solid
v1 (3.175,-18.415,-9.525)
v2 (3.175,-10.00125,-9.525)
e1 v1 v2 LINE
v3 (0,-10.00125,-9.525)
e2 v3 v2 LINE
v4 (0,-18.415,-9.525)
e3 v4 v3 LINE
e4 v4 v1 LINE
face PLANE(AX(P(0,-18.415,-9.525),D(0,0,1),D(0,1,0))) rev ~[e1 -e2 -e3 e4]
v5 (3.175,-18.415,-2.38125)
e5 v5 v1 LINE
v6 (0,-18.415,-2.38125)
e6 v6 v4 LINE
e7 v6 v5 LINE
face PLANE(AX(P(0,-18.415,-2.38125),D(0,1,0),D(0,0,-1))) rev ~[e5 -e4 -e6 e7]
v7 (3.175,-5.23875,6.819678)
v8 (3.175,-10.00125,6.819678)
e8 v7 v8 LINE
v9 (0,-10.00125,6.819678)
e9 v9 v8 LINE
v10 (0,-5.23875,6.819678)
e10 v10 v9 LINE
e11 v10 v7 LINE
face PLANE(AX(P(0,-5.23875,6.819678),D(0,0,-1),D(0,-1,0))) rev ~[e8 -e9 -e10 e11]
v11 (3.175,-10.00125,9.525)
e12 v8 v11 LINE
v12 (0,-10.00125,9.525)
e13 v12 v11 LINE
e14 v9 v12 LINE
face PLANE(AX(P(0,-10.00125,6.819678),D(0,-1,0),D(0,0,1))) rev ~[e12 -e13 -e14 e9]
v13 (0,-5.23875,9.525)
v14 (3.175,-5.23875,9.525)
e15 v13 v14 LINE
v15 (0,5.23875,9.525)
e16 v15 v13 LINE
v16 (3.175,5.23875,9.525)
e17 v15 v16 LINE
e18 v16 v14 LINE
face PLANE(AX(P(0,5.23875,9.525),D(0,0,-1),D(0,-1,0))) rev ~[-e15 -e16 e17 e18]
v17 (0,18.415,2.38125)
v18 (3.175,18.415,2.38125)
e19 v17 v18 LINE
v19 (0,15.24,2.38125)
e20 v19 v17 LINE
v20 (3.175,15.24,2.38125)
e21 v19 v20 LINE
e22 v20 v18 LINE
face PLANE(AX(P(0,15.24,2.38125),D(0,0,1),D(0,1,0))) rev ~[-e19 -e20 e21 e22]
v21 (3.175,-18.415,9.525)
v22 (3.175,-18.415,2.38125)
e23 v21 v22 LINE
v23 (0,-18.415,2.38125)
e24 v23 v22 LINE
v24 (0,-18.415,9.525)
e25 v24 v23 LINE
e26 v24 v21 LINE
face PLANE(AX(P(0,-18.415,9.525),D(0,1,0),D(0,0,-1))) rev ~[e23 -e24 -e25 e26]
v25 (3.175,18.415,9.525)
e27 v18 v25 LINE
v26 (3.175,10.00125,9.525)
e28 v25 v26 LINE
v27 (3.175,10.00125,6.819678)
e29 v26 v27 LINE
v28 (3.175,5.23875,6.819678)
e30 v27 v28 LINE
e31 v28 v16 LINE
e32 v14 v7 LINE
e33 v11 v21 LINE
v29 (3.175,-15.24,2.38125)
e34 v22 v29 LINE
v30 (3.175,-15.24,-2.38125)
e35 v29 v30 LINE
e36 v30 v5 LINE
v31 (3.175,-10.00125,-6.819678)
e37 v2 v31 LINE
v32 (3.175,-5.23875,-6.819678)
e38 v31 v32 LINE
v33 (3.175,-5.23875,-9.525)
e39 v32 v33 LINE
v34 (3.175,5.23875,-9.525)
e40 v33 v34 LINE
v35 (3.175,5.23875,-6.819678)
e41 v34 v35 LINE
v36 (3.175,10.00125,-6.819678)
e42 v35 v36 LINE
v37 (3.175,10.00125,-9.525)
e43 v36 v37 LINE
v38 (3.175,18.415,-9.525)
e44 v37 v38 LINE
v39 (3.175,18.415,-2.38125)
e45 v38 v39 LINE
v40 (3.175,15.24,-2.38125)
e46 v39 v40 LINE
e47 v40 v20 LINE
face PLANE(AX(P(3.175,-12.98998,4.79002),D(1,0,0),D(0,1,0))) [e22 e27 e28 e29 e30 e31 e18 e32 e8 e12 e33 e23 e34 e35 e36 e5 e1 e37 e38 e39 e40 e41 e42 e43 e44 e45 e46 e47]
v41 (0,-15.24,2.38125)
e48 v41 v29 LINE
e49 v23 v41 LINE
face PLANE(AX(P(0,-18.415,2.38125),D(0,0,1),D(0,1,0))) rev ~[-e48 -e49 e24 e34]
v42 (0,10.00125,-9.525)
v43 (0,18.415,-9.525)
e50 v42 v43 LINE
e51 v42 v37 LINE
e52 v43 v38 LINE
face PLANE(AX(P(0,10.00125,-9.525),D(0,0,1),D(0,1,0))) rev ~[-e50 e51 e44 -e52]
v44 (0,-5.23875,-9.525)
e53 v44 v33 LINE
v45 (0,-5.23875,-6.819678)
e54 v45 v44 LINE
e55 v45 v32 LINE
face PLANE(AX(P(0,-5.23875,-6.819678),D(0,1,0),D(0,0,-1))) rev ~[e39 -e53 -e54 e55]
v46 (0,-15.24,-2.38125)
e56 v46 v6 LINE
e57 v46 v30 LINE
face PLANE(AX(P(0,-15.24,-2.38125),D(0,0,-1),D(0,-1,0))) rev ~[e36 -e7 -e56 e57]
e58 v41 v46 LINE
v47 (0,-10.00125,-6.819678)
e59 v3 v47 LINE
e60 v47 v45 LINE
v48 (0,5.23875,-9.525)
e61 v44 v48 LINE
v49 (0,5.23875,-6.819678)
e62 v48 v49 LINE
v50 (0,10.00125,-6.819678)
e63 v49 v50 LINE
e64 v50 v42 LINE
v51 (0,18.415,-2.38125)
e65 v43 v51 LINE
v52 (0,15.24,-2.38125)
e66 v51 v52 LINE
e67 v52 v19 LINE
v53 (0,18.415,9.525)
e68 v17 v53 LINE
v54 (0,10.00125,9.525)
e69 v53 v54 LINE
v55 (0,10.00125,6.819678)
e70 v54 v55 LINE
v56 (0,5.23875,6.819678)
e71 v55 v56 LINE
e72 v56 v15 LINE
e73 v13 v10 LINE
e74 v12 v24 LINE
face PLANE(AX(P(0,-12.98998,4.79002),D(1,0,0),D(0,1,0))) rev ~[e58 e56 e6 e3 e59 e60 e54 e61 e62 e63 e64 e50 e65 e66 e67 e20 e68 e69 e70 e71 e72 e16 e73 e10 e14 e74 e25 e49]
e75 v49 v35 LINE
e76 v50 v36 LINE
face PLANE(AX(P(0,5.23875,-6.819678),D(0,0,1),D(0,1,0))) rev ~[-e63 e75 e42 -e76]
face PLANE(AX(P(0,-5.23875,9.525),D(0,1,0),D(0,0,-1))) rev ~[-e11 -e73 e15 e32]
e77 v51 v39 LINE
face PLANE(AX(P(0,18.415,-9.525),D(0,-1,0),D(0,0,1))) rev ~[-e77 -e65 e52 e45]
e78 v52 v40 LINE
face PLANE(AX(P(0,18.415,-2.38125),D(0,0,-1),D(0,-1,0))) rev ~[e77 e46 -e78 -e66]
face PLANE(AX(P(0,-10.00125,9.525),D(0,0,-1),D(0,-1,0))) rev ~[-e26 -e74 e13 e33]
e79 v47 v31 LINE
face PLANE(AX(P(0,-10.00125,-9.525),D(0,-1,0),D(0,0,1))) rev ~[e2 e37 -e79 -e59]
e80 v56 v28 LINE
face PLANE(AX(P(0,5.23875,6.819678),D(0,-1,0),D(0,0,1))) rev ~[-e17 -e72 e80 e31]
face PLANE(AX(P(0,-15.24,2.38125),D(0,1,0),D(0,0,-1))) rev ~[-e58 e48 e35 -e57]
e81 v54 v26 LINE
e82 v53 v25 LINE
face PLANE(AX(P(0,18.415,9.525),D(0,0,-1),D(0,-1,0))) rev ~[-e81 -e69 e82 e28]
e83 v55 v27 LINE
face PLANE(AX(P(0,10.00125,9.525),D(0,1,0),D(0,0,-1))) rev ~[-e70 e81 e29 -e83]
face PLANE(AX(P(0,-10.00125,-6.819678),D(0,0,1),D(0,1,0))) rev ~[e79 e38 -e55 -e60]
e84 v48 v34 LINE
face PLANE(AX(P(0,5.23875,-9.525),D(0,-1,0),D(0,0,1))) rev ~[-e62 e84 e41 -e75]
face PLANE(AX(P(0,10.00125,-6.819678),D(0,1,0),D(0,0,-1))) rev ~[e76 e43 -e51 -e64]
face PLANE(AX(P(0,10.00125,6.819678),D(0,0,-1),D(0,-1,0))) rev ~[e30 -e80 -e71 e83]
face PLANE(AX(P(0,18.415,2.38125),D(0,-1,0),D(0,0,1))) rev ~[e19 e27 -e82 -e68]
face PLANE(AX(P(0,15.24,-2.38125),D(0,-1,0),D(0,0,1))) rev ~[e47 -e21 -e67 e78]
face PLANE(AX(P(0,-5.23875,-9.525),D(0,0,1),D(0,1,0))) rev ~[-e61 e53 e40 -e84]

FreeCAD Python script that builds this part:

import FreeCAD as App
import Part
import Sketcher
Q = App.Units.Quantity

doc = App.newDocument("Part")
body = doc.addObject("PartDesign::Body", "Body")

sketch1 = doc.addObject("Sketcher::SketchObject", "Sketch")
body.addObject(sketch1)
sketch1.AttachmentSupport = (doc.YZ_Plane, [""])
sketch1.MapMode = "FlatFace"
sketch1.addGeometry(Part.LineSegment(App.Vector(-5.23875, -6.819678, 0), App.Vector(-5.23875, -9.525, 0)), False)
sketch1.addGeometry(Part.LineSegment(App.Vector(-5.23875, -9.525, 0), App.Vector(5.23875, -9.525, 0)), False)
sketch1.addGeometry(Part.LineSegment(App.Vector(5.23875, -9.525, 0), App.Vector(5.23875, -6.819678, 0)), False)
sketch1.addGeometry(Part.LineSegment(App.Vector(5.23875, -6.819678, 0), App.Vector(10.00125, -6.819678, 0)), False)
sketch1.addGeometry(Part.LineSegment(App.Vector(10.00125, -6.819678, 0), App.Vector(10.00125, -9.525, 0)), False)
sketch1.addGeometry(Part.LineSegment(App.Vector(10.00125, -9.525, 0), App.Vector(18.415, -9.525, 0)), False)
sketch1.addGeometry(Part.LineSegment(App.Vector(18.415, -9.525, 0), App.Vector(18.415, -2.38125, 0)), False)
sketch1.addGeometry(Part.LineSegment(App.Vector(18.415, -2.38125, 0), App.Vector(15.24, -2.38125, 0)), False)
sketch1.addGeometry(Part.LineSegment(App.Vector(15.24, -2.38125, 0), App.Vector(15.24, 2.38125, 0)), False)
sketch1.addGeometry(Part.LineSegment(App.Vector(15.24, 2.38125, 0), App.Vector(18.415, 2.38125, 0)), False)
sketch1.addGeometry(Part.LineSegment(App.Vector(18.415, 2.38125, 0), App.Vector(18.415, 9.525, 0)), False)
sketch1.addGeometry(Part.LineSegment(App.Vector(18.415, 9.525, 0), App.Vector(10.00125, 9.525, 0)), False)
sketch1.addGeometry(Part.LineSegment(App.Vector(10.00125, 9.525, 0), App.Vector(10.00125, 6.819678, 0)), False)
sketch1.addGeometry(Part.LineSegment(App.Vector(10.00125, 6.819678, 0), App.Vector(5.23875, 6.819678, 0)), False)
sketch1.addGeometry(Part.LineSegment(App.Vector(5.23875, 6.819678, 0), App.Vector(5.23875, 9.525, 0)), False)
sketch1.addGeometry(Part.LineSegment(App.Vector(5.23875, 9.525, 0), App.Vector(-5.23875, 9.525, 0)), False)
sketch1.addGeometry(Part.LineSegment(App.Vector(-5.23875, 9.525, 0), App.Vector(-5.23875, 6.819678, 0)), False)
sketch1.addGeometry(Part.LineSegment(App.Vector(-5.23875, 6.819678, 0), App.Vector(-10.00125, 6.819678, 0)), False)
sketch1.addGeometry(Part.LineSegment(App.Vector(-10.00125, 6.819678, 0), App.Vector(-10.00125, 9.525, 0)), False)
sketch1.addGeometry(Part.LineSegment(App.Vector(-10.00125, 9.525, 0), App.Vector(-18.415, 9.525, 0)), False)
sketch1.addGeometry(Part.LineSegment(App.Vector(-18.415, 9.525, 0), App.Vector(-18.415, 2.38125, 0)), False)
sketch1.addGeometry(Part.LineSegment(App.Vector(-18.415, 2.38125, 0), App.Vector(-15.24, 2.38125, 0)), False)
sketch1.addGeometry(Part.LineSegment(App.Vector(-15.24, 2.38125, 0), App.Vector(-15.24, -2.38125, 0)), False)
sketch1.addGeometry(Part.LineSegment(App.Vector(-15.24, -2.38125, 0), App.Vector(-18.415, -2.38125, 0)), False)
sketch1.addGeometry(Part.LineSegment(App.Vector(-18.415, -2.38125, 0), App.Vector(-18.415, -9.525, 0)), False)
sketch1.addGeometry(Part.LineSegment(App.Vector(-18.415, -9.525, 0), App.Vector(-10.00125, -9.525, 0)), False)
sketch1.addGeometry(Part.LineSegment(App.Vector(-10.00125, -9.525, 0), App.Vector(-10.00125, -6.819678, 0)), False)
sketch1.addGeometry(Part.LineSegment(App.Vector(-10.00125, -6.819678, 0), App.Vector(-5.23875, -6.819678, 0)), False)
sketch1.addConstraint(Sketcher.Constraint("Coincident", 0, 2, 1, 1))
sketch1.addConstraint(Sketcher.Constraint("Coincident", 1, 2, 2, 1))
sketch1.addConstraint(Sketcher.Constraint("Coincident", 2, 2, 3, 1))
sketch1.addConstraint(Sketcher.Constraint("Coincident", 3, 2, 4, 1))
sketch1.addConstraint(Sketcher.Constraint("Coincident", 4, 2, 5, 1))
sketch1.addConstraint(Sketcher.Constraint("Coincident", 5, 2, 6, 1))
sketch1.addConstraint(Sketcher.Constraint("Coincident", 6, 2, 7, 1))
sketch1.addConstraint(Sketcher.Constraint("Coincident", 7, 2, 8, 1))
sketch1.addConstraint(Sketcher.Constraint("Coincident", 8, 2, 9, 1))
sketch1.addConstraint(Sketcher.Constraint("Coincident", 9, 2, 10, 1))
sketch1.addConstraint(Sketcher.Constraint("Coincident", 10, 2, 11, 1))
sketch1.addConstraint(Sketcher.Constraint("Coincident", 11, 2, 12, 1))
sketch1.addConstraint(Sketcher.Constraint("Coincident", 12, 2, 13, 1))
sketch1.addConstraint(Sketcher.Constraint("Coincident", 13, 2, 14, 1))
sketch1.addConstraint(Sketcher.Constraint("Coincident", 14, 2, 15, 1))
sketch1.addConstraint(Sketcher.Constraint("Coincident", 15, 2, 16, 1))
sketch1.addConstraint(Sketcher.Constraint("Coincident", 16, 2, 17, 1))
sketch1.addConstraint(Sketcher.Constraint("Coincident", 17, 2, 18, 1))
sketch1.addConstraint(Sketcher.Constraint("Coincident", 18, 2, 19, 1))
sketch1.addConstraint(Sketcher.Constraint("Coincident", 19, 2, 20, 1))
sketch1.addConstraint(Sketcher.Constraint("Coincident", 20, 2, 21, 1))
sketch1.addConstraint(Sketcher.Constraint("Coincident", 21, 2, 22, 1))
sketch1.addConstraint(Sketcher.Constraint("Coincident", 22, 2, 23, 1))
sketch1.addConstraint(Sketcher.Constraint("Coincident", 23, 2, 24, 1))
sketch1.addConstraint(Sketcher.Constraint("Coincident", 24, 2, 25, 1))
sketch1.addConstraint(Sketcher.Constraint("Coincident", 25, 2, 26, 1))
sketch1.addConstraint(Sketcher.Constraint("Coincident", 26, 2, 27, 1))
sketch1.addConstraint(Sketcher.Constraint("Coincident", 27, 2, 0, 1))
sketch1.addConstraint(Sketcher.Constraint("Vertical", 0))
sketch1.addConstraint(Sketcher.Constraint("Horizontal", 1))
sketch1.addConstraint(Sketcher.Constraint("Vertical", 2))
sketch1.addConstraint(Sketcher.Constraint("Horizontal", 3))
sketch1.addConstraint(Sketcher.Constraint("Vertical", 4))
sketch1.addConstraint(Sketcher.Constraint("Horizontal", 5))
sketch1.addConstraint(Sketcher.Constraint("Vertical", 6))
sketch1.addConstraint(Sketcher.Constraint("Horizontal", 7))
sketch1.addConstraint(Sketcher.Constraint("Vertical", 8))
sketch1.addConstraint(Sketcher.Constraint("Horizontal", 9))
sketch1.addConstraint(Sketcher.Constraint("Vertical", 10))
sketch1.addConstraint(Sketcher.Constraint("Horizontal", 11))
sketch1.addConstraint(Sketcher.Constraint("Vertical", 12))
sketch1.addConstraint(Sketcher.Constraint("Horizontal", 13))
sketch1.addConstraint(Sketcher.Constraint("Vertical", 14))
sketch1.addConstraint(Sketcher.Constraint("Horizontal", 15))
sketch1.addConstraint(Sketcher.Constraint("Vertical", 16))
sketch1.addConstraint(Sketcher.Constraint("Horizontal", 17))
sketch1.addConstraint(Sketcher.Constraint("Vertical", 18))
sketch1.addConstraint(Sketcher.Constraint("Horizontal", 19))
sketch1.addConstraint(Sketcher.Constraint("Vertical", 20))
sketch1.addConstraint(Sketcher.Constraint("Horizontal", 21))
sketch1.addConstraint(Sketcher.Constraint("Vertical", 22))
sketch1.addConstraint(Sketcher.Constraint("Horizontal", 23))
sketch1.addConstraint(Sketcher.Constraint("Vertical", 24))
sketch1.addConstraint(Sketcher.Constraint("Horizontal", 25))
sketch1.addConstraint(Sketcher.Constraint("Vertical", 26))
sketch1.addConstraint(Sketcher.Constraint("Horizontal", 27))
sketch1.addConstraint(Sketcher.Constraint("Symmetric", 0, 2, 14, 2, -1, 1))
sketch1.addConstraint(Sketcher.Constraint("Symmetric", 2, 2, 16, 2, -1, 1))
sketch1.addConstraint(Sketcher.Constraint("Symmetric", 4, 2, 18, 2, -1, 1))
sketch1.addConstraint(Sketcher.Constraint("Symmetric", 6, 2, 20, 2, -1, 1))
sketch1.addConstraint(Sketcher.Constraint("Symmetric", 8, 2, 22, 2, -1, 1))
sketch1.addConstraint(Sketcher.Constraint("Symmetric", 10, 2, 24, 2, -1, 1))
sketch1.addConstraint(Sketcher.Constraint("Symmetric", 12, 2, 26, 2, -1, 1))
sketch1.addConstraint(Sketcher.Constraint("Symmetric", 13, 2, 16, 2, -2))
sketch1.addConstraint(Sketcher.Constraint("Symmetric", 11, 2, 18, 2, -2))
sketch1.addConstraint(Sketcher.Constraint("Symmetric", 9, 2, 20, 2, -2))
sketch1.addConstraint(Sketcher.Constraint("Horizontal", 1, 2, 4, 2))
sketch1.addConstraint(Sketcher.Constraint("Equal", 27, 8))
sketch1.addConstraint(Sketcher.Constraint("DistanceX", -1, 1, 7, 2, Q("0.6 in")))
sketch1.addConstraint(Sketcher.Constraint("DistanceX", 0, 2, 3, 2, Q("0.6 in")))
sketch1.addConstraint(Sketcher.Constraint("DistanceX", 3, 1, 3, 2, Q("0.1875 in")))
sketch1.addConstraint(Sketcher.Constraint("DistanceX", 7, 2, 7, 1, Q("0.125 in")))
sketch1.addConstraint(Sketcher.Constraint("DistanceY", 6, 1, 6, 2, Q("0.28125 in")))
sketch1.addConstraint(Sketcher.Constraint("DistanceY", 0, 2, 0, 1, 2.705322))
pad1 = doc.addObject("PartDesign::Pad", "Pad")
body.addObject(pad1)
pad1.Profile = sketch1
pad1.Length = Q("0.125 in")

doc.recompute()
